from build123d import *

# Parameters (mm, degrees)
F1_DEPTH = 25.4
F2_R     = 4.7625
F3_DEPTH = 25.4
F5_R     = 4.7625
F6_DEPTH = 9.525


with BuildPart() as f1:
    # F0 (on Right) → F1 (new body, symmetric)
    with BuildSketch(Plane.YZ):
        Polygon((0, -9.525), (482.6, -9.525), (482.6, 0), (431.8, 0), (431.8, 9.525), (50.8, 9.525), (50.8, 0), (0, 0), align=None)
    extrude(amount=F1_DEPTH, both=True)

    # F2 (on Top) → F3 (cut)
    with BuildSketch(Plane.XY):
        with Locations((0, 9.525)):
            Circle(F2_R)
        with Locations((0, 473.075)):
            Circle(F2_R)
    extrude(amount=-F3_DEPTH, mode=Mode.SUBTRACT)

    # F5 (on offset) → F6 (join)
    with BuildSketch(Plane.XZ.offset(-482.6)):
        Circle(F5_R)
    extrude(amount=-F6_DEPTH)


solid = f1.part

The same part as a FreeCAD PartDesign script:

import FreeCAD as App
import Part
import Sketcher
from FreeCAD import Vector
Q = App.Units.Quantity


def add_polygon(sketch, points):
    """Adds a closed chain of lines whose ends are joined by coincident constraints."""
    first, n = sketch.GeometryCount, len(points)
    for a, b in zip(points, points[1:] + points[:1]):
        sketch.addGeometry(Part.LineSegment(App.Vector(*a, 0), App.Vector(*b, 0)), False)
    for i in range(n):
        sketch.addConstraint(Sketcher.Constraint("Coincident", first + i, 2, first + (i + 1) % n, 1))

doc = App.newDocument("Part")
body = doc.addObject("PartDesign::Body", "Body")

sketch1 = body.newObject("Sketcher::SketchObject", "Sketch")
sketch1.AttachmentSupport = (doc.getObject("YZ_Plane"), [""])
sketch1.MapMode = "FlatFace"
add_polygon(sketch1, [(0, -10), (483, -10), (483, 0), (432, 0), (432, 10), (51, 10), (51, 0), (0, 0)])
sketch1.addConstraint([
    Sketcher.Constraint("Horizontal", 0),
    Sketcher.Constraint("Vertical", 1),
    Sketcher.Constraint("Horizontal", 2),
    Sketcher.Constraint("Vertical", 3),
    Sketcher.Constraint("Horizontal", 4),
    Sketcher.Constraint("Vertical", 5),
    Sketcher.Constraint("Horizontal", 6),
    Sketcher.Constraint("Vertical", 7),
    Sketcher.Constraint("Coincident", 6, 2, -1, 1),
    Sketcher.Constraint("PointOnObject", 1, 2, -1),
    Sketcher.Constraint("Equal", 2, 6),
    Sketcher.Constraint("Equal", 1, 3),
    Sketcher.Constraint("DistanceX", 0, 1, 0, 2, Q("19 in")),
    Sketcher.Constraint("DistanceX", 2, 2, 2, 1, Q("2 in")),
    Sketcher.Constraint("DistanceY", 1, 1, 1, 2, Q("0.375 in")),
])
pad1 = body.newObject("PartDesign::Pad", "Pad")
pad1.Profile = sketch1
pad1.Length = Q("2 in")
pad1.Midplane = True

sketch2 = body.newObject("Sketcher::SketchObject", "Sketch001")
sketch2.AttachmentSupport = (doc.getObject("XY_Plane"), [""])
sketch2.MapMode = "FlatFace"
sketch2.addGeometry([
    Part.Circle(Vector(0, 9.5, 0), Vector(0, 0, 1), 4.8),
    Part.Circle(Vector(0, 473.1, 0), Vector(0, 0, 1), 4.8),
], False)
sketch2.addConstraint([
    Sketcher.Constraint("Equal", 0, 1),
    Sketcher.Constraint("PointOnObject", 0, 3, -2),
    Sketcher.Constraint("PointOnObject", 1, 3, -2),
    Sketcher.Constraint("Diameter", 0, Q("0.375 in")),
    Sketcher.Constraint("DistanceY", 0, 3, 1, 3, Q("18.25 in")),
    Sketcher.Constraint("DistanceY", -1, 1, 0, 3, Q("0.375 in")),
])
pocket1 = body.newObject("PartDesign::Pocket", "Pocket")
pocket1.Profile = sketch2
pocket1.Length = Q("1 in")

sketch3 = body.newObject("Sketcher::SketchObject", "Sketch002")
sketch3.AttachmentSupport = (doc.getObject("XZ_Plane"), [""])
sketch3.MapMode = "FlatFace"
sketch3.AttachmentOffset = App.Placement(Vector(0, 0, -19 * 25.4), App.Rotation())
sketch3.addGeometry(Part.Circle(Vector(0, 0, 0), Vector(0, 0, 1), 4.8), False)
sketch3.addConstraint([
    Sketcher.Constraint("Coincident", 0, 3, -1, 1),
    Sketcher.Constraint("Diameter", 0, Q("0.375 in")),
])
pad2 = body.newObject("PartDesign::Pad", "Pad001")
pad2.Profile = sketch3
pad2.Length = Q("0.375 in")
pad2.Reversed = True

doc.recompute()
